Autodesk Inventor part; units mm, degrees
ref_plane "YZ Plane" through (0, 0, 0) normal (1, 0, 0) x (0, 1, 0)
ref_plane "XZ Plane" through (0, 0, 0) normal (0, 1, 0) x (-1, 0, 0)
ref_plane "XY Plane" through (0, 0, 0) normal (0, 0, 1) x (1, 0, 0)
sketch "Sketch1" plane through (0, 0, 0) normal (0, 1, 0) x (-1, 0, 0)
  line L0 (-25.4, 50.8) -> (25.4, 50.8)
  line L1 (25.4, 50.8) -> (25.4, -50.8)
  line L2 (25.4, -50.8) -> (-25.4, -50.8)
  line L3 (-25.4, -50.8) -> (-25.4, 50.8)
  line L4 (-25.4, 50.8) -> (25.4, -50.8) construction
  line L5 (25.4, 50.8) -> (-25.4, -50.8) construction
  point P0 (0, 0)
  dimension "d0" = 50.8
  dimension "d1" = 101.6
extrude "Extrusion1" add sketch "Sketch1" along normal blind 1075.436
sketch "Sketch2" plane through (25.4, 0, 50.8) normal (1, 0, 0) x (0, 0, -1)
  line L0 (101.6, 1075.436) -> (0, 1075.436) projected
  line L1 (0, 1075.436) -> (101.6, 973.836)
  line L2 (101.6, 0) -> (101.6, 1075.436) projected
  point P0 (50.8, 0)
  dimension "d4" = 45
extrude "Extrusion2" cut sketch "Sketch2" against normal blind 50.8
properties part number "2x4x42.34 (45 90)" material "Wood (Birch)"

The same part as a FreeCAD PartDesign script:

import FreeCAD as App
import Part
import Sketcher

V = App.Vector
Q = App.Units.Quantity


def add_polygon(sketch, points):
    """Adds a closed chain of lines whose ends are joined by coincident constraints."""
    first, n = sketch.GeometryCount, len(points)
    for a, b in zip(points, points[1:] + points[:1]):
        sketch.addGeometry(Part.LineSegment(App.Vector(*a, 0), App.Vector(*b, 0)), False)
    for i in range(n):
        sketch.addConstraint(Sketcher.Constraint("Coincident", first + i, 2, first + (i + 1) % n, 1))

doc = App.newDocument("Part")
body = doc.addObject("PartDesign::Body", "Body")

# Sketch on XZ plane
sketch1 = body.newObject("Sketcher::SketchObject", "Sketch")
sketch1.AttachmentSupport = (doc.getObject("XZ_Plane"), [""])
sketch1.MapMode = "FlatFace"
add_polygon(sketch1, [(-25, 51), (25, 51), (25, -51), (-25, -51)])  # lines 0-3
sketch1.addConstraint([
    Sketcher.Constraint("Horizontal", 0),
    Sketcher.Constraint("Vertical", 1),
    Sketcher.Constraint("Horizontal", 2),
    Sketcher.Constraint("Vertical", 3),
    Sketcher.Constraint("Symmetric", 0, 2, 2, 2, -1, 1),
    Sketcher.Constraint("DistanceX", 0, 1, 0, 2, Q("2 in")),
    Sketcher.Constraint("DistanceY", 1, 2, 1, 1, Q("4 in")),
])
pad1 = body.newObject("PartDesign::Pad", "Pad")
pad1.Profile = sketch1
pad1.Length = Q("42.34 in")
pad1.Reversed = True

# Sketch on YZ plane
sketch2 = body.newObject("Sketcher::SketchObject", "Sketch001")
sketch2.AttachmentSupport = (doc.getObject("YZ_Plane"), [""])
sketch2.MapMode = "FlatFace"
sketch2.AttachmentOffset = App.Placement(V(0, 0, 1 * 25.4), App.Rotation())
add_polygon(sketch2, [(974, -51), (1075, -51), (1075, 51)])  # lines 0-2
sketch2.addConstraint([
    Sketcher.Constraint("Horizontal", 0),
    Sketcher.Constraint("Vertical", 1),
    Sketcher.Constraint("Equal", 0, 1),
    Sketcher.Constraint("DistanceX", 0, 1, 0, 2, Q("4 in")),
    Sketcher.Constraint("DistanceY", 0, 2, -1, 1, Q("2 in")),
    Sketcher.Constraint("DistanceX", -1, 1, 0, 2, Q("42.34 in")),
])
pocket1 = body.newObject("PartDesign::Pocket", "Pocket")
pocket1.Profile = sketch2
pocket1.Length = Q("2 in")

doc.recompute()
